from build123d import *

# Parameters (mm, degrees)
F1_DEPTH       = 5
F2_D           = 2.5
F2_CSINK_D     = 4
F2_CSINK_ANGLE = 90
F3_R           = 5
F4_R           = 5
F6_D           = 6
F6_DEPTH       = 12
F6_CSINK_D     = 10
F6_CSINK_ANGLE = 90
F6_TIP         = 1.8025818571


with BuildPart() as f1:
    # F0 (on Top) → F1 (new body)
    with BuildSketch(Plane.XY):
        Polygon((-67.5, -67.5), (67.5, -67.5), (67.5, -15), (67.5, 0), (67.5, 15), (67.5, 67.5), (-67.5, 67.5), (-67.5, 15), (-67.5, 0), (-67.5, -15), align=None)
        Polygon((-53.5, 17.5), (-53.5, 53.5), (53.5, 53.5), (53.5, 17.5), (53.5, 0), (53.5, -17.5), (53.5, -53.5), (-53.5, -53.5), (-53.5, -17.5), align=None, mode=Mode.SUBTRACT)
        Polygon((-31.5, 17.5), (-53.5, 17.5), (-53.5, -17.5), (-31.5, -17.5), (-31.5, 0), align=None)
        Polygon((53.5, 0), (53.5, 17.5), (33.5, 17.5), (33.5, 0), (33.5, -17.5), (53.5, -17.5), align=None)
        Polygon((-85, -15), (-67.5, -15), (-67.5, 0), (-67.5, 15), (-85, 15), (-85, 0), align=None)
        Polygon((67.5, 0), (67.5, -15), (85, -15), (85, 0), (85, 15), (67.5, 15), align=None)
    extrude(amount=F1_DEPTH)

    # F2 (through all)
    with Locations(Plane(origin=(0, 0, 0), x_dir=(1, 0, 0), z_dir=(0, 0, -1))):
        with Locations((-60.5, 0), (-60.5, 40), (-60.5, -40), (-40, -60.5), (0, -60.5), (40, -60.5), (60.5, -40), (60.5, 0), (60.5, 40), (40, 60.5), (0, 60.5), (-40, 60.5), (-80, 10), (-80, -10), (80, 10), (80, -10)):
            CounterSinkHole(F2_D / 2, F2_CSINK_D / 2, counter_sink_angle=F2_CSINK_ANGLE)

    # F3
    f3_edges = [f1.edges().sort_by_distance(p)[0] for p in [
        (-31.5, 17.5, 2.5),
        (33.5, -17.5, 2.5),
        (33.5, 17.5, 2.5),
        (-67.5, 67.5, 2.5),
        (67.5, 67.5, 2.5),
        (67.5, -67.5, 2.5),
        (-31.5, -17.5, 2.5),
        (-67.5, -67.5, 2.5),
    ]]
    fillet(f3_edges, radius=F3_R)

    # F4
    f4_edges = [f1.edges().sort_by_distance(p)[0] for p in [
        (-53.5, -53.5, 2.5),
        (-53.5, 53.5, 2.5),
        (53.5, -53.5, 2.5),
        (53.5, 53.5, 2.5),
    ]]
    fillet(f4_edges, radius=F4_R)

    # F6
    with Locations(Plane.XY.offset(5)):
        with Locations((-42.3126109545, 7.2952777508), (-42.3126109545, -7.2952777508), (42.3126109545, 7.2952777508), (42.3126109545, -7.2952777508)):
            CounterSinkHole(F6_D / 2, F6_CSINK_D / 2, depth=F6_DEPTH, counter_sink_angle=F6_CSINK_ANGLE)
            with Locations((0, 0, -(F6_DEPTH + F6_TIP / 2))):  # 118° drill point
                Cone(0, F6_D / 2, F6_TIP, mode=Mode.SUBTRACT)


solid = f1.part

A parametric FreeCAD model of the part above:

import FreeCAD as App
import Part
import Sketcher
from FreeCAD import Vector
Q = App.Units.Quantity


def edges_at(feature, points):
    """Names of the edges that pass closest to the given points."""
    edges = feature.Shape.Edges
    near = lambda p: min(range(len(edges)), key=lambda i: edges[i].distToShape(Part.Vertex(*p))[0])
    return sorted({f"Edge{near(p) + 1}" for p in points})

doc = App.newDocument("Part")
params = doc.addObject("Spreadsheet::Sheet", "Params")
for row, (alias, value) in enumerate([
    ("sketch1_width", "135 mm"),
    ("sketch1_width2", "22 mm"),
    ("sketch1_width3", "107 mm"),
    ("sketch1_width4", "20 mm"),
    ("sketch1_height", "30 mm"),
    ("pad1_length", "5 mm"),
    ("sketch2_diameter", "2.5 mm"),
    ("hole_diameter", "2.5 mm"),
    ("hole_csink_diameter", "4 mm"),
    ("fillet_radius", "5 mm"),
    ("fillet2_radius", "5 mm"),
    ("sketch3_diameter", "6 mm"),
    ("hole2_diameter", "6 mm"),
    ("hole2_depth", "12 mm"),
    ("hole2_csink_diameter", "10 mm"),
], start=1):
    params.set(f"A{row}", alias)
    params.set(f"B{row}", "=" + value)
    params.setAlias(f"B{row}", alias)

body = doc.addObject("PartDesign::Body", "Body")

# Sketch on XY plane
sketch1 = body.newObject("Sketcher::SketchObject", "Sketch")
sketch1.AttachmentSupport = (doc.getObject("XY_Plane"), [""])
sketch1.MapMode = "FlatFace"
sketch1.addGeometry([
    Part.LineSegment(Vector(-68, -68, 0), Vector(68, -68, 0)),  # 0
    Part.LineSegment(Vector(68, -68, 0), Vector(68, -15, 0)),  # 1
    Part.LineSegment(Vector(68, -15, 0), Vector(85, -15, 0)),  # 2
    Part.LineSegment(Vector(85, -15, 0), Vector(85, 15, 0)),  # 3
    Part.LineSegment(Vector(85, 15, 0), Vector(68, 15, 0)),  # 4
    Part.LineSegment(Vector(68, 15, 0), Vector(68, 68, 0)),  # 5
    Part.LineSegment(Vector(68, 68, 0), Vector(-68, 68, 0)),  # 6
    Part.LineSegment(Vector(-68, 68, 0), Vector(-68, 15, 0)),  # 7
    Part.LineSegment(Vector(-68, 15, 0), Vector(-85, 15, 0)),  # 8
    Part.LineSegment(Vector(-85, 15, 0), Vector(-85, -15, 0)),  # 9
    Part.LineSegment(Vector(-85, -15, 0), Vector(-68, -15, 0)),  # 10
    Part.LineSegment(Vector(-68, -15, 0), Vector(-68, -68, 0)),  # 11
    Part.LineSegment(Vector(-54, -54, 0), Vector(-54, -18, 0)),  # 12
    Part.LineSegment(Vector(-54, -18, 0), Vector(-32, -18, 0)),  # 13
    Part.LineSegment(Vector(-32, -18, 0), Vector(-32, 18, 0)),  # 14
    Part.LineSegment(Vector(-32, 18, 0), Vector(-54, 18, 0)),  # 15
    Part.LineSegment(Vector(-54, 18, 0), Vector(-54, 54, 0)),  # 16
    Part.LineSegment(Vector(-54, 54, 0), Vector(54, 54, 0)),  # 17
    Part.LineSegment(Vector(54, 54, 0), Vector(54, 18, 0)),  # 18
    Part.LineSegment(Vector(54, 18, 0), Vector(34, 18, 0)),  # 19
    Part.LineSegment(Vector(34, 18, 0), Vector(34, -18, 0)),  # 20
    Part.LineSegment(Vector(34, -18, 0), Vector(54, -18, 0)),  # 21
    Part.LineSegment(Vector(54, -18, 0), Vector(54, -54, 0)),  # 22
    Part.LineSegment(Vector(54, -54, 0), Vector(-54, -54, 0)),  # 23
], False)
sketch1.addConstraint([
    Sketcher.Constraint("Coincident", 0, 2, 1, 1),
    Sketcher.Constraint("Coincident", 1, 2, 2, 1),
    Sketcher.Constraint("Coincident", 2, 2, 3, 1),
    Sketcher.Constraint("Coincident", 3, 2, 4, 1),
    Sketcher.Constraint("Coincident", 4, 2, 5, 1),
    Sketcher.Constraint("Coincident", 5, 2, 6, 1),
    Sketcher.Constraint("Coincident", 6, 2, 7, 1),
    Sketcher.Constraint("Coincident", 7, 2, 8, 1),
    Sketcher.Constraint("Coincident", 8, 2, 9, 1),
    Sketcher.Constraint("Coincident", 9, 2, 10, 1),
    Sketcher.Constraint("Coincident", 10, 2, 11, 1),
    Sketcher.Constraint("Coincident", 11, 2, 0, 1),
    Sketcher.Constraint("Coincident", 12, 2, 13, 1),
    Sketcher.Constraint("Coincident", 13, 2, 14, 1),
    Sketcher.Constraint("Coincident", 14, 2, 15, 1),
    Sketcher.Constraint("Coincident", 15, 2, 16, 1),
    Sketcher.Constraint("Coincident", 16, 2, 17, 1),
    Sketcher.Constraint("Coincident", 17, 2, 18, 1),
    Sketcher.Constraint("Coincident", 18, 2, 19, 1),
    Sketcher.Constraint("Coincident", 19, 2, 20, 1),
    Sketcher.Constraint("Coincident", 20, 2, 21, 1),
    Sketcher.Constraint("Coincident", 21, 2, 22, 1),
    Sketcher.Constraint("Coincident", 22, 2, 23, 1),
    Sketcher.Constraint("Coincident", 23, 2, 12, 1),
    Sketcher.Constraint("Horizontal", 0),
    Sketcher.Constraint("Vertical", 1),
    Sketcher.Constraint("Horizontal", 2),
    Sketcher.Constraint("Vertical", 3),
    Sketcher.Constraint("Horizontal", 4),
    Sketcher.Constraint("Vertical", 5),
    Sketcher.Constraint("Horizontal", 6),
    Sketcher.Constraint("Vertical", 7),
    Sketcher.Constraint("Horizontal", 8),
    Sketcher.Constraint("Vertical", 9),
    Sketcher.Constraint("Horizontal", 10),
    Sketcher.Constraint("Vertical", 11),
    Sketcher.Constraint("Vertical", 12),
    Sketcher.Constraint("Horizontal", 13),
    Sketcher.Constraint("Vertical", 14),
    Sketcher.Constraint("Horizontal", 15),
    Sketcher.Constraint("Vertical", 16),
    Sketcher.Constraint("Horizontal", 17),
    Sketcher.Constraint("Vertical", 18),
    Sketcher.Constraint("Horizontal", 19),
    Sketcher.Constraint("Vertical", 20),
    Sketcher.Constraint("Horizontal", 21),
    Sketcher.Constraint("Vertical", 22),
    Sketcher.Constraint("Horizontal", 23),
    Sketcher.Constraint("Symmetric", 0, 2, 6, 2, -1, 1),
    Sketcher.Constraint("Symmetric", 2, 2, 8, 2, -1, 1),
    Sketcher.Constraint("Symmetric", 4, 2, 10, 2, -1, 1),
    Sketcher.Constraint("Symmetric", 12, 2, 18, 2, -1, 1),
    Sketcher.Constraint("Symmetric", 15, 2, 21, 2, -1, 1),
    Sketcher.Constraint("Symmetric", 4, 2, 7, 2, -2),
    Sketcher.Constraint("Symmetric", 15, 2, 18, 2, -2),
    Sketcher.Constraint("Equal", 12, 16),
    Sketcher.Constraint("DistanceX", 0, 1, 0, 2, Q("135 mm")),
    Sketcher.Constraint("DistanceX", 13, 1, 13, 2, Q("22 mm")),
    Sketcher.Constraint("DistanceX", 17, 1, 17, 2, Q("107 mm")),
    Sketcher.Constraint("DistanceX", 19, 2, 19, 1, Q("20 mm")),
    Sketcher.Constraint("DistanceY", 3, 1, 3, 2, Q("30 mm")),
    Sketcher.Constraint("DistanceY", 12, 1, 12, 2, Q("36 mm")),
    Sketcher.Constraint("DistanceY", 14, 1, 14, 2, Q("35 mm")),
    Sketcher.Constraint("DistanceX", 2, 1, 2, 2, Q("17.5 mm")),
    Sketcher.Constraint("DistanceY", 1, 1, 1, 2, Q("52.5 mm")),
])
sketch1.setExpression("Constraints[56]", "Params.sketch1_width")
sketch1.setExpression("Constraints[57]", "Params.sketch1_width2")
sketch1.setExpression("Constraints[58]", "Params.sketch1_width3")
sketch1.setExpression("Constraints[59]", "Params.sketch1_width4")
sketch1.setExpression("Constraints[60]", "Params.sketch1_height")
pad1 = body.newObject("PartDesign::Pad", "Pad")
pad1.Profile = sketch1
pad1.setExpression("Length", "Params.pad1_length")

# Sketch on XY plane
sketch2 = body.newObject("Sketcher::SketchObject", "Sketch001")
sketch2.AttachmentSupport = (doc.getObject("XY_Plane"), [""])
sketch2.MapMode = "FlatFace"
sketch2.addGeometry([
    Part.Circle(Vector(-60.5, 0, 0), Vector(0, 0, 1), 1.2),  # 0
    Part.Circle(Vector(-60.5, -40, 0), Vector(0, 0, 1), 1.2),  # 1
    Part.Circle(Vector(-60.5, 40, 0), Vector(0, 0, 1), 1.2),  # 2
    Part.Circle(Vector(-40, 60.5, 0), Vector(0, 0, 1), 1.2),  # 3
    Part.Circle(Vector(0, 60.5, 0), Vector(0, 0, 1), 1.2),  # 4
    Part.Circle(Vector(40, 60.5, 0), Vector(0, 0, 1), 1.2),  # 5
    Part.Circle(Vector(60.5, 40, 0), Vector(0, 0, 1), 1.2),  # 6
    Part.Circle(Vector(60.5, 0, 0), Vector(0, 0, 1), 1.2),  # 7
    Part.Circle(Vector(60.5, -40, 0), Vector(0, 0, 1), 1.2),  # 8
    Part.Circle(Vector(40, -60.5, 0), Vector(0, 0, 1), 1.2),  # 9
    Part.Circle(Vector(0, -60.5, 0), Vector(0, 0, 1), 1.2),  # 10
    Part.Circle(Vector(-40, -60.5, 0), Vector(0, 0, 1), 1.2),  # 11
    Part.Circle(Vector(-80, -10, 0), Vector(0, 0, 1), 1.2),  # 12
    Part.Circle(Vector(-80, 10, 0), Vector(0, 0, 1), 1.2),  # 13
    Part.Circle(Vector(80, -10, 0), Vector(0, 0, 1), 1.2),  # 14
    Part.Circle(Vector(80, 10, 0), Vector(0, 0, 1), 1.2),  # 15
], False)
sketch2.addConstraint([
    Sketcher.Constraint("Equal", 0, 1),
    Sketcher.Constraint("Equal", 1, 2),
    Sketcher.Constraint("Equal", 2, 3),
    Sketcher.Constraint("Equal", 3, 4),
    Sketcher.Constraint("Equal", 4, 5),
    Sketcher.Constraint("Equal", 5, 6),
    Sketcher.Constraint("Equal", 6, 7),
    Sketcher.Constraint("Equal", 7, 8),
    Sketcher.Constraint("Equal", 8, 9),
    Sketcher.Constraint("Equal", 9, 10),
    Sketcher.Constraint("Equal", 10, 11),
    Sketcher.Constraint("Equal", 11, 12),
    Sketcher.Constraint("Equal", 12, 13),
    Sketcher.Constraint("Equal", 13, 14),
    Sketcher.Constraint("Equal", 14, 15),
    Sketcher.Constraint("Symmetric", 1, 3, 6, 3, -1, 1),
    Sketcher.Constraint("Symmetric", 0, 3, 7, 3, -1, 1),
    Sketcher.Constraint("Symmetric", 2, 3, 8, 3, -1, 1),
    Sketcher.Constraint("Symmetric", 3, 3, 9, 3, -1, 1),
    Sketcher.Constraint("Symmetric", 4, 3, 10, 3, -1, 1),
    Sketcher.Constraint("Symmetric", 5, 3, 11, 3, -1, 1),
    Sketcher.Constraint("Symmetric", 13, 3, 14, 3, -1, 1),
    Sketcher.Constraint("Symmetric", 12, 3, 15, 3, -1, 1),
    Sketcher.Constraint("Symmetric", 3, 3, 5, 3, -2),
    Sketcher.Constraint("Symmetric", 2, 3, 6, 3, -2),
    Sketcher.Constraint("Symmetric", 12, 3, 14, 3, -2),
    Sketcher.Constraint("PointOnObject", 0, 3, -1),
    Sketcher.Constraint("PointOnObject", 4, 3, -2),
    Sketcher.Constraint("Horizontal", 3, 3, 4, 3),
    Sketcher.Constraint("Vertical", 0, 3, 1, 3),
    Sketcher.Constraint("Diameter", 0, Q("2.5 mm")),
    Sketcher.Constraint("DistanceY", 1, 3, -1, 1, Q("40 mm")),
    Sketcher.Constraint("DistanceX", 3, 3, -1, 1, Q("40 mm")),
    Sketcher.Constraint("DistanceX", 12, 3, -1, 1, Q("80 mm")),
    Sketcher.Constraint("DistanceY", 12, 3, -1, 1, Q("10 mm")),
    Sketcher.Constraint("DistanceX", 2, 3, 6, 3, Q("121 mm")),
    Sketcher.Constraint("DistanceY", -1, 1, 3, 3, Q("60.5 mm")),
])
sketch2.setExpression("Constraints[30]", "Params.sketch2_diameter")
doc.recompute()
hole = body.newObject("PartDesign::Hole", "Hole")
hole.Profile = sketch2
hole.ThreadType = "None"
hole.setExpression("Diameter", "Params.hole_diameter")
hole.DepthType = "ThroughAll"
hole.HoleCutType = "Countersink"
hole.setExpression("HoleCutDiameter", "Params.hole_csink_diameter")
hole.HoleCutCountersinkAngle = 90
hole.Reversed = True
doc.recompute()

fillet = body.newObject("PartDesign::Fillet", "Fillet")
fillet.Base = (hole, edges_at(hole, [
    (-31.5, 17.5, 2.5),
    (33.5, -17.5, 2.5),
    (33.5, 17.5, 2.5),
    (-67.5, 67.5, 2.5),
    (67.5, 67.5, 2.5),
    (67.5, -67.5, 2.5),
    (-31.5, -17.5, 2.5),
    (-67.5, -67.5, 2.5),
]))
fillet.setExpression("Radius", "Params.fillet_radius")
doc.recompute()

fillet2 = body.newObject("PartDesign::Fillet", "Fillet001")
fillet2.Base = (fillet, edges_at(fillet, [
    (-53.5, -53.5, 2.5),
    (-53.5, 53.5, 2.5),
    (53.5, -53.5, 2.5),
    (53.5, 53.5, 2.5),
]))
fillet2.setExpression("Radius", "Params.fillet2_radius")

# Sketch on XY plane
sketch3 = body.newObject("Sketcher::SketchObject", "Sketch002")
sketch3.AttachmentSupport = (doc.getObject("XY_Plane"), [""])
sketch3.MapMode = "FlatFace"
sketch3.AttachmentOffset = App.Placement(Vector(0, 0, 5), App.Rotation())
sketch3.addGeometry([
    Part.Circle(Vector(-42.3, 7.3, 0), Vector(0, 0, 1), 3),
    Part.Circle(Vector(-42.3, -7.3, 0), Vector(0, 0, 1), 3),
    Part.Circle(Vector(42.3, 7.3, 0), Vector(0, 0, 1), 3),
    Part.Circle(Vector(42.3, -7.3, 0), Vector(0, 0, 1), 3),
], False)
sketch3.addConstraint([
    Sketcher.Constraint("Equal", 0, 1),
    Sketcher.Constraint("Equal", 1, 2),
    Sketcher.Constraint("Equal", 2, 3),
    Sketcher.Constraint("Symmetric", 1, 3, 2, 3, -1, 1),
    Sketcher.Constraint("Symmetric", 0, 3, 3, 3, -1, 1),
    Sketcher.Constraint("Symmetric", 0, 3, 2, 3, -2),
    Sketcher.Constraint("Diameter", 0, Q("6 mm")),
    Sketcher.Constraint("DistanceX", 0, 3, -1, 1, Q("42.312611 mm")),
    Sketcher.Constraint("DistanceY", -1, 1, 0, 3, Q("7.295278 mm")),
])
sketch3.setExpression("Constraints[6]", "Params.sketch3_diameter")
doc.recompute()
hole2 = body.newObject("PartDesign::Hole", "Hole001")
hole2.Profile = sketch3
hole2.ThreadType = "None"
hole2.setExpression("Diameter", "Params.hole2_diameter")
hole2.DepthType = "Dimension"
hole2.setExpression("Depth", "Params.hole2_depth")
hole2.DrillPoint = "Angled"
hole2.DrillPointAngle = 118
hole2.HoleCutType = "Countersink"
hole2.setExpression("HoleCutDiameter", "Params.hole2_csink_diameter")
hole2.HoleCutCountersinkAngle = 90

doc.recompute()
